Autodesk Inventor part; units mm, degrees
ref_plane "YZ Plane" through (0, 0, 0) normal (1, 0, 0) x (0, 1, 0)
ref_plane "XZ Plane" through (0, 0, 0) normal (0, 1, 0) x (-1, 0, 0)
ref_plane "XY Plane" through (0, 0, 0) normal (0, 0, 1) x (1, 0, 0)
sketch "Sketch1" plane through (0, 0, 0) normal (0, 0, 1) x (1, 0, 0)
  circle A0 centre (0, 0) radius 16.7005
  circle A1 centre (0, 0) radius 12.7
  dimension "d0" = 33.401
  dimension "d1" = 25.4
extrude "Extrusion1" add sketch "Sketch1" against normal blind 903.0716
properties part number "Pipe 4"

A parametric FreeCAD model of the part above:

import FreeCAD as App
import Part
import Sketcher
Q = App.Units.Quantity

doc = App.newDocument("Part")
body = doc.addObject("PartDesign::Body", "Body")

sketch1 = body.newObject("Sketcher::SketchObject", "Sketch")
sketch1.AttachmentSupport = (doc.getObject("XY_Plane"), [""])
sketch1.MapMode = "FlatFace"
sketch1.addGeometry([
    Part.Circle(App.Vector(0, 0, 0), App.Vector(0, 0, 1), 17),
    Part.Circle(App.Vector(0, 0, 0), App.Vector(0, 0, 1), 13),
], False)
sketch1.addConstraint([
    Sketcher.Constraint("Coincident", 0, 3, -1, 1),
    Sketcher.Constraint("Coincident", 1, 3, -1, 1),
    Sketcher.Constraint("Diameter", 1, Q("1 in")),
    Sketcher.Constraint("Diameter", 0, Q("1.315 in")),
])
pad1 = body.newObject("PartDesign::Pad", "Pad")
pad1.Profile = sketch1
pad1.Length = Q("35.554 in")
pad1.Reversed = True

doc.recompute()
